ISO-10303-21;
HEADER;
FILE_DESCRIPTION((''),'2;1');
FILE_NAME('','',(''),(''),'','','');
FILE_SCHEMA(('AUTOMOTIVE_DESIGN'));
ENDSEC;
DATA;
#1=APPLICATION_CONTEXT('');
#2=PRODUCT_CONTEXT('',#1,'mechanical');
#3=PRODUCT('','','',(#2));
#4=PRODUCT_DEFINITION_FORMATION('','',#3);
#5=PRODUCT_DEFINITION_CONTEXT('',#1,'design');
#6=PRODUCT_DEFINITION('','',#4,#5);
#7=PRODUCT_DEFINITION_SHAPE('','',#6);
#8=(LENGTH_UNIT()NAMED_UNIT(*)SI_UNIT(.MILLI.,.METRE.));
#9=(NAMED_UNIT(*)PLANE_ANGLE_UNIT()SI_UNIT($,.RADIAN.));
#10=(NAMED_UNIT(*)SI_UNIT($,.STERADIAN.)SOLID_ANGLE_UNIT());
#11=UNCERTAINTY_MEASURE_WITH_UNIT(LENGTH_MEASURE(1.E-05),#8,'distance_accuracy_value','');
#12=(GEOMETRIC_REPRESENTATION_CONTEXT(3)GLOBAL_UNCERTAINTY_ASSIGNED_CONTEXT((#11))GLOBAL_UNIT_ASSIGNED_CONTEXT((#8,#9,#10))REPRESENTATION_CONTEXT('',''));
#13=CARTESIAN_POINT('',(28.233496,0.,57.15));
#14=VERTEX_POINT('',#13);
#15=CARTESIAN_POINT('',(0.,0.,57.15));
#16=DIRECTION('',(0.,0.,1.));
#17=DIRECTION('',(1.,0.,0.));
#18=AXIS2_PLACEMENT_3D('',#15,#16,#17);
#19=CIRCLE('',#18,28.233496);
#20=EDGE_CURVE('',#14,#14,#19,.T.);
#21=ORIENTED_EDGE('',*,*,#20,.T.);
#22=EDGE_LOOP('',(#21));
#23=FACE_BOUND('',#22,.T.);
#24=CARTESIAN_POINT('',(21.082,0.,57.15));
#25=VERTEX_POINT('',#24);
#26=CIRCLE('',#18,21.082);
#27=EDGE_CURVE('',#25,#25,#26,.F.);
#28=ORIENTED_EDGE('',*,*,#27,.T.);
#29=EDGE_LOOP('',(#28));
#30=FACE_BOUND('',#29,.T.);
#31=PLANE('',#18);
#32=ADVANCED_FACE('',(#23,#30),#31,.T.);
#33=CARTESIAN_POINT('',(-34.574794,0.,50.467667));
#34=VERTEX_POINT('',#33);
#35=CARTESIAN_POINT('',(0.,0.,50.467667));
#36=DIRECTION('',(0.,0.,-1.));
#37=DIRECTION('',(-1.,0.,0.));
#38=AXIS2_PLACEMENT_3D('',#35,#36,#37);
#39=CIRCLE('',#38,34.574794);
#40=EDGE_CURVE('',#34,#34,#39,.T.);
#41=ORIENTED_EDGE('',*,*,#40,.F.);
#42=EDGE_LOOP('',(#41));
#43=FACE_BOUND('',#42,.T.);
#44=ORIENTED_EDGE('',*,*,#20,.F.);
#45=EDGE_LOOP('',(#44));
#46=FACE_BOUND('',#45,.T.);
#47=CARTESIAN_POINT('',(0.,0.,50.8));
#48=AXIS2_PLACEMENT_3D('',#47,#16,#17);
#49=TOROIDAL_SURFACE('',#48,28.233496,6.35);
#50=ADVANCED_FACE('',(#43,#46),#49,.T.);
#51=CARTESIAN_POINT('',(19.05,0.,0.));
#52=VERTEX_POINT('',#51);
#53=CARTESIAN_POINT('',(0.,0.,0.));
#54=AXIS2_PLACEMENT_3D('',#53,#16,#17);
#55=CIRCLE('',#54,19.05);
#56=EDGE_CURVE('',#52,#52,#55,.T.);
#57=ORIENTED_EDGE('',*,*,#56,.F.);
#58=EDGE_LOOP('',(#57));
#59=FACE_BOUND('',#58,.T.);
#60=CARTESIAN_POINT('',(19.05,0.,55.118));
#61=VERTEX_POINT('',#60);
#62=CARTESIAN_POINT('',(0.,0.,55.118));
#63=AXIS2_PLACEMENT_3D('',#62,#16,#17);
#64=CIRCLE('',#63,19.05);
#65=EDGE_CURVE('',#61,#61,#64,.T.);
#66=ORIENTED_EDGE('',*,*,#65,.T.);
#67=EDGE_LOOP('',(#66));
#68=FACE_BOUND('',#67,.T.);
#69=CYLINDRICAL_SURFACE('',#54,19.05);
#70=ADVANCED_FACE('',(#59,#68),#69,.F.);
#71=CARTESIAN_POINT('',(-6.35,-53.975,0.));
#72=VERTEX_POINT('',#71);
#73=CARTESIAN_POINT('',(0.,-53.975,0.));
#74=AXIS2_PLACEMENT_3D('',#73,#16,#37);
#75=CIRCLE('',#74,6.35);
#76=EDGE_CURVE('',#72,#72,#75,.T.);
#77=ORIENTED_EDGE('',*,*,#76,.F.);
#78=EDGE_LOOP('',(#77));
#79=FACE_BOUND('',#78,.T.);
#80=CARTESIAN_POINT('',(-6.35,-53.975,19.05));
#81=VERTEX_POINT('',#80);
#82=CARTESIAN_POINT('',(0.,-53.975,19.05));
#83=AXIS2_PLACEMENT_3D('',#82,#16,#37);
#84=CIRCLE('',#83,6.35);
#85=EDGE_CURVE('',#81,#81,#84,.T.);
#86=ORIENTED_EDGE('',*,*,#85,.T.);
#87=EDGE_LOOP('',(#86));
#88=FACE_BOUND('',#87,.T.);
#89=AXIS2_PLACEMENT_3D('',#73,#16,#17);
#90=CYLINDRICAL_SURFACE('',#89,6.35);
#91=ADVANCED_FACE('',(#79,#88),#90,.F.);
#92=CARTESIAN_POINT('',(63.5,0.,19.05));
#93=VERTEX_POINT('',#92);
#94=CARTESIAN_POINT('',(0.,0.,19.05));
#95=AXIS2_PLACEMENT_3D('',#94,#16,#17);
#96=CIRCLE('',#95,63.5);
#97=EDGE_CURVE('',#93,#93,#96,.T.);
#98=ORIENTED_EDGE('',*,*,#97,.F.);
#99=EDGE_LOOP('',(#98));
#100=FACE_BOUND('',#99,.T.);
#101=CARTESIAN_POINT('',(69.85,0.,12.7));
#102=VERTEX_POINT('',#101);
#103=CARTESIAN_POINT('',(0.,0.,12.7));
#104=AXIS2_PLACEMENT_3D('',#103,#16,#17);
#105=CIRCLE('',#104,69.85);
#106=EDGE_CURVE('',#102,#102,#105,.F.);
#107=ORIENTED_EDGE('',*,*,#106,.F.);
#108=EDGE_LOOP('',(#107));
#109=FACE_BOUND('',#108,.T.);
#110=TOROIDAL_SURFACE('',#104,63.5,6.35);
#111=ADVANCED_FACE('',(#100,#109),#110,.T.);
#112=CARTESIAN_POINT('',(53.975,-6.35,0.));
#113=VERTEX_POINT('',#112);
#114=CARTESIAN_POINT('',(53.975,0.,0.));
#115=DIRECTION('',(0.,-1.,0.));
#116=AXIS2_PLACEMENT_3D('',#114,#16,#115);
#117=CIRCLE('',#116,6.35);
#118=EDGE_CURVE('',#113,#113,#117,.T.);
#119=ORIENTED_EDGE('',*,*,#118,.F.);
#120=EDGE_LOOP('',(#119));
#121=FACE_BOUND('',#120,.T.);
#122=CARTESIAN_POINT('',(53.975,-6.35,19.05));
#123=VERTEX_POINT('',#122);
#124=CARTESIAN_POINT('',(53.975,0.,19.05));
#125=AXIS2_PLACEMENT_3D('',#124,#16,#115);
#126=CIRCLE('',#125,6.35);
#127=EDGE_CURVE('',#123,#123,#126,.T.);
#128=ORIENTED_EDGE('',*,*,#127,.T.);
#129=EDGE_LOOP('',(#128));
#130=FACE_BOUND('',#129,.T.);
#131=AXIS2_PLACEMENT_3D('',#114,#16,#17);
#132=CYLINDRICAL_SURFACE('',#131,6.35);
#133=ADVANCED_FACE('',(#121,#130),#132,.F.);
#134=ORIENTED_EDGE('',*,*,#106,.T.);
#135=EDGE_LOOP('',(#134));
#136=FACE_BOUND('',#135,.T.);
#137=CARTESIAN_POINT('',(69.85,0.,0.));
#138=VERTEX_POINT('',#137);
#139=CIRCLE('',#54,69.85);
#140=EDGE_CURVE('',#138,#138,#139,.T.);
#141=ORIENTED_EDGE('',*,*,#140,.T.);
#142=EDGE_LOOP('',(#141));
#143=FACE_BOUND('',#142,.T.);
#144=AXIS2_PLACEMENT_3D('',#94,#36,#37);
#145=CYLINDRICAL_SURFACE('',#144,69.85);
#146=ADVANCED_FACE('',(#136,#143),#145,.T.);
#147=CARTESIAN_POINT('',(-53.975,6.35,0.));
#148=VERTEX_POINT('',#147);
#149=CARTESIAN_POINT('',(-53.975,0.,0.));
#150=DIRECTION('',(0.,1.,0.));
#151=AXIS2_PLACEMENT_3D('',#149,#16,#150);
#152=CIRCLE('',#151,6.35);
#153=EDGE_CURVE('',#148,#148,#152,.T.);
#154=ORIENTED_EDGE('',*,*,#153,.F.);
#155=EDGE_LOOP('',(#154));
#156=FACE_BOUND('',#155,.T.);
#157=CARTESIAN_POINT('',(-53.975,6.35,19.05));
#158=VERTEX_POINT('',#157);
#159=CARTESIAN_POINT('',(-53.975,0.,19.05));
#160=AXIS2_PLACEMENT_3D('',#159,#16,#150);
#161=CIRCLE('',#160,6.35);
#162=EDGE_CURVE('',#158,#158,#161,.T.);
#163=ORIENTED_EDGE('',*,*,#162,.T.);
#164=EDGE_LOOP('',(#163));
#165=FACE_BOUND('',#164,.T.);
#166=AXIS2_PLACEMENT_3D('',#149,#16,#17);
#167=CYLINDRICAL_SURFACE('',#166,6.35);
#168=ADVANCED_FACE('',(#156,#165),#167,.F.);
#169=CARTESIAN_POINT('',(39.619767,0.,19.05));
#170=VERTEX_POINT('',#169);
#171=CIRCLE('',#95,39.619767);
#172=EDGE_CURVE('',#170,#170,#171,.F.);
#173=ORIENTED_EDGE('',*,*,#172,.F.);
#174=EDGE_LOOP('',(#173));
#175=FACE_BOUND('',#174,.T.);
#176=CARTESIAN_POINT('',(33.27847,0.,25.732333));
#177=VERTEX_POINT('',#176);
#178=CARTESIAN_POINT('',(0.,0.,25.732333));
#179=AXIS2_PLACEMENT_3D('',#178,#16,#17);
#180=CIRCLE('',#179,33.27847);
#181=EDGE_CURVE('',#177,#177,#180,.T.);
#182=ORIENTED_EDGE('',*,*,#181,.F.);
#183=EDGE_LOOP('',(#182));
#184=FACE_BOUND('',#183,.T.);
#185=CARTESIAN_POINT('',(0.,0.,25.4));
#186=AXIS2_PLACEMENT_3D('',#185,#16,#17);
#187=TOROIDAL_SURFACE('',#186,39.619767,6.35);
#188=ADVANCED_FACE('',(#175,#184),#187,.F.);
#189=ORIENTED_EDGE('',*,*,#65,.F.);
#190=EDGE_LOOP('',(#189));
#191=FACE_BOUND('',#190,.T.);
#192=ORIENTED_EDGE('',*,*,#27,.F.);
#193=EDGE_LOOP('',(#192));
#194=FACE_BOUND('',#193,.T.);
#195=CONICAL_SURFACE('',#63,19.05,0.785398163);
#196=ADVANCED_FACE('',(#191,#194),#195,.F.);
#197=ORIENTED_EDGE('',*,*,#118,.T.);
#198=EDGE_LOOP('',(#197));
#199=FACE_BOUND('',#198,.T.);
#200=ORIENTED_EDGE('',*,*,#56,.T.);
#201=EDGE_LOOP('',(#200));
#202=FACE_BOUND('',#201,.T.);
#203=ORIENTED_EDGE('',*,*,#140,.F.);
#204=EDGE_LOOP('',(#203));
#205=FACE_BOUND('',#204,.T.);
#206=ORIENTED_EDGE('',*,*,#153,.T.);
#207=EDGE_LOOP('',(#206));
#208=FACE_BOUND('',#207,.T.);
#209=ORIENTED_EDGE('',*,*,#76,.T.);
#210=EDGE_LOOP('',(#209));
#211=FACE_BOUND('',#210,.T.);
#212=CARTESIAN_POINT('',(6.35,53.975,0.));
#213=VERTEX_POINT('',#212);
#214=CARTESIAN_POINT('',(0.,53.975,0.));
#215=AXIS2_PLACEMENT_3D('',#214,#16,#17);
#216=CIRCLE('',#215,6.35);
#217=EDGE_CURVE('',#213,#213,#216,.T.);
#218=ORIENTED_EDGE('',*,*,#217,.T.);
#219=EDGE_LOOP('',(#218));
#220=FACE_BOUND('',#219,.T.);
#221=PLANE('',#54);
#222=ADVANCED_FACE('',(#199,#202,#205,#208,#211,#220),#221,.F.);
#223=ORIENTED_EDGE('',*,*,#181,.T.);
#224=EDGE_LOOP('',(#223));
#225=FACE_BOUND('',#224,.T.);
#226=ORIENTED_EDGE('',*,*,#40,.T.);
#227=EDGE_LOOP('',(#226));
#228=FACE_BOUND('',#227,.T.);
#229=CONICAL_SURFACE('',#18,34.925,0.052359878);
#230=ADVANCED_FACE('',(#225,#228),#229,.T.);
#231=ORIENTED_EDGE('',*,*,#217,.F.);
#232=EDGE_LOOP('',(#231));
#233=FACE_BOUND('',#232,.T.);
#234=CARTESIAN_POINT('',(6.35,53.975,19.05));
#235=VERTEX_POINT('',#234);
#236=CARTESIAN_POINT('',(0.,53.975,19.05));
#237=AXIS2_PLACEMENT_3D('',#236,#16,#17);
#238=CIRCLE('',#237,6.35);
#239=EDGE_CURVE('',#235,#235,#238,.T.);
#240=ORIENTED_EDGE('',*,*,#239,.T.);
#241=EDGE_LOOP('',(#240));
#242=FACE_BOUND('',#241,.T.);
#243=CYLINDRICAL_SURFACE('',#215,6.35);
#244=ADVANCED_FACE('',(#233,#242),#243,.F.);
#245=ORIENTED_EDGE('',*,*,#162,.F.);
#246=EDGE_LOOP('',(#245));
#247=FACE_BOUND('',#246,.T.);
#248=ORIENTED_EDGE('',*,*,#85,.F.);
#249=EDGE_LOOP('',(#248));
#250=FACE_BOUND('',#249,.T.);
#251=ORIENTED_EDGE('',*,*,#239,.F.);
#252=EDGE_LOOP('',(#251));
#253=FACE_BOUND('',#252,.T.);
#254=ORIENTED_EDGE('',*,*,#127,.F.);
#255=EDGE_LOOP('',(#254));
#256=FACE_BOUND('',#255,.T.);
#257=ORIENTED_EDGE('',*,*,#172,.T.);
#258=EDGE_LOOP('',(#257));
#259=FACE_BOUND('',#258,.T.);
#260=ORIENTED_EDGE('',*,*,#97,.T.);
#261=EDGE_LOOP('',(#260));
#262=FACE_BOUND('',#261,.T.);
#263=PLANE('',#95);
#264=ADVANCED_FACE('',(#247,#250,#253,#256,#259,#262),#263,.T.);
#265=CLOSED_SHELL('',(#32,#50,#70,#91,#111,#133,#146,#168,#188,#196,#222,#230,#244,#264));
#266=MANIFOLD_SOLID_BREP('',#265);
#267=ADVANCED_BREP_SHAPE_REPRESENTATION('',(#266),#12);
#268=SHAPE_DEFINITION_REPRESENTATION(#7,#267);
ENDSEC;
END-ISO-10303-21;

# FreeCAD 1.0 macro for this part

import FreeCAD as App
import Part
import Sketcher
Q = App.Units.Quantity


def edges_at(feature, points):
    """Names of the edges that pass closest to the given points."""
    edges = feature.Shape.Edges
    near = lambda p: min(range(len(edges)), key=lambda i: edges[i].distToShape(Part.Vertex(*p))[0])
    return sorted({f"Edge{near(p) + 1}" for p in points})

doc = App.newDocument("Part")
body = doc.addObject("PartDesign::Body", "Body")

# Sketch on XY plane
sketch1 = body.newObject("Sketcher::SketchObject", "Sketch")
sketch1.AttachmentSupport = (doc.getObject("XY_Plane"), [""])
sketch1.MapMode = "FlatFace"
sketch1.addGeometry(Part.Circle(App.Vector(0, 0, 0), App.Vector(0, 0, 1), 69.85), False)
sketch1.addConstraint(Sketcher.Constraint("Coincident", 0, 3, -1, 1))
sketch1.addConstraint(Sketcher.Constraint("Diameter", 0, Q("5.5 in")))
pad1 = body.newObject("PartDesign::Pad", "Pad")
pad1.Profile = sketch1
pad1.Length = Q("0.75 in")

# Sketch on XY plane
sketch2 = body.newObject("Sketcher::SketchObject", "Sketch001")
sketch2.AttachmentSupport = (doc.getObject("XY_Plane"), [""])
sketch2.MapMode = "FlatFace"
sketch2.AttachmentOffset = App.Placement(App.Vector(0, 0, 2.25 * 25.4), App.Rotation())
sketch2.addGeometry(Part.Circle(App.Vector(0, 0, 0), App.Vector(0, 0, 1), 34.925), False)
sketch2.addConstraint(Sketcher.Constraint("Coincident", 0, 3, -1, 1))
sketch2.addConstraint(Sketcher.Constraint("Diameter", 0, Q("2.75 in")))
pad2 = body.newObject("PartDesign::Pad", "Pad001")
pad2.Profile = sketch2
pad2.Length = Q("1.5 in")
pad2.Reversed = True
pad2.TaperAngle = -3

# Sketch on XY plane
sketch3 = body.newObject("Sketcher::SketchObject", "Sketch002")
sketch3.AttachmentSupport = (doc.getObject("XY_Plane"), [""])
sketch3.MapMode = "FlatFace"
sketch3.AttachmentOffset = App.Placement(App.Vector(0, 0, 0.75 * 25.4), App.Rotation())
sketch3.addGeometry(Part.Circle(App.Vector(0, 0, 0), App.Vector(0, 0, 1), 19.05), False)
sketch3.addConstraint(Sketcher.Constraint("Coincident", 0, 3, -1, 1))
sketch3.addConstraint(Sketcher.Constraint("Diameter", 0, Q("1.5 in")))
pocket1 = body.newObject("PartDesign::Pocket", "Pocket")
pocket1.Profile = sketch3
pocket1.Type = "ThroughAll"

# Sketch on XY plane
sketch4 = body.newObject("Sketcher::SketchObject", "Sketch003")
sketch4.AttachmentSupport = (doc.getObject("XY_Plane"), [""])
sketch4.MapMode = "FlatFace"
sketch4.AttachmentOffset = App.Placement(App.Vector(0, 0, 2.25 * 25.4), App.Rotation())
sketch4.addGeometry(Part.Circle(App.Vector(0, 0, 0), App.Vector(0, 0, 1), 19.05), False)
sketch4.addConstraint(Sketcher.Constraint("Coincident", 0, 3, -1, 1))
sketch4.addConstraint(Sketcher.Constraint("Diameter", 0, Q("1.5 in")))
pocket2 = body.newObject("PartDesign::Pocket", "Pocket001")
pocket2.Profile = sketch4
pocket2.Type = "ThroughAll"

# Sketch on XY plane
sketch5 = body.newObject("Sketcher::SketchObject", "Sketch004")
sketch5.AttachmentSupport = (doc.getObject("XY_Plane"), [""])
sketch5.MapMode = "FlatFace"
sketch5.AttachmentOffset = App.Placement(App.Vector(0, 0, 0.75 * 25.4), App.Rotation())
sketch5.addGeometry(Part.Circle(App.Vector(0, 53.975, 0), App.Vector(0, 0, 1), 6.35), False)
sketch5.addConstraint(Sketcher.Constraint("PointOnObject", 0, 3, -2))
sketch5.addConstraint(Sketcher.Constraint("Diameter", 0, Q("0.5 in")))
sketch5.addConstraint(Sketcher.Constraint("DistanceY", -1, 1, 0, 3, Q("2.125 in")))
pocket3 = body.newObject("PartDesign::Pocket", "Pocket002")
pocket3.Profile = sketch5
pocket3.Type = "ThroughAll"
doc.recompute()

polarpattern = body.newObject("PartDesign::PolarPattern", "PolarPattern")
polarpattern.Originals = [pocket3]
polarpattern.Axis = (doc.getObject("Z_Axis"), [""])
polarpattern.Angle = 360
polarpattern.Occurrences = 4
body.Tip = polarpattern
doc.recompute()

fillet = body.newObject("PartDesign::Fillet", "Fillet")
fillet.Base = (polarpattern, edges_at(polarpattern, [(-69.85, 0, 19.05), (-34.925, 0, 57.15), (-32.928, 0, 19.05)]))
fillet.Radius = Q("0.25 in")
doc.recompute()

chamfer = body.newObject("PartDesign::Chamfer", "Chamfer")
chamfer.Base = (fillet, edges_at(fillet, [(-19.05, 0, 57.15)]))
chamfer.Size = Q("0.08 in")

doc.recompute()
